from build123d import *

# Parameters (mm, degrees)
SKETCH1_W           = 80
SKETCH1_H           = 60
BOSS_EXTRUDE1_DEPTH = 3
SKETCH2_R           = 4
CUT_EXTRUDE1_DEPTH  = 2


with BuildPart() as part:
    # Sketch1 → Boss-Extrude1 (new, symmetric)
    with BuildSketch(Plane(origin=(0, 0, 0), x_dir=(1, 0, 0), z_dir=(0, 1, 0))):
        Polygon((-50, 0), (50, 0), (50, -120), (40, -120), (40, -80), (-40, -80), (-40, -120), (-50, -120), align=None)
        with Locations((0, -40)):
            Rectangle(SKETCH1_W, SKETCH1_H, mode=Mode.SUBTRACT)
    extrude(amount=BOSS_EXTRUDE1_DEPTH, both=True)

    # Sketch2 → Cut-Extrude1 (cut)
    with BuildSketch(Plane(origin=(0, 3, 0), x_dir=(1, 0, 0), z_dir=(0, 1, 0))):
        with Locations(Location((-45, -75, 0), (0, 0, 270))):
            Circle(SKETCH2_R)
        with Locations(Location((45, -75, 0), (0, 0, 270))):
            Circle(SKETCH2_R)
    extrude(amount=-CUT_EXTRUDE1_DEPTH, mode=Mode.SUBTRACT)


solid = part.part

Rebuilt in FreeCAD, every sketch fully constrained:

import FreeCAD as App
import Part
import Sketcher
from FreeCAD import Vector
Q = App.Units.Quantity

doc = App.newDocument("Part")
params = doc.addObject("Spreadsheet::Sheet", "Params")
for row, (alias, value) in enumerate([
    ("sketch1_width", "100 mm"),
    ("sketch1_width2", "10 mm"),
    ("sketch1_height", "120 mm"),
    ("sketch1_height2", "40 mm"),
    ("sketch1_height3", "60 mm"),
    ("pad1_length", "6 mm"),
    ("sketch2_diameter", "8 mm"),
    ("pocket1_length", "2 mm"),
], start=1):
    params.set(f"A{row}", alias)
    params.set(f"B{row}", "=" + value)
    params.setAlias(f"B{row}", alias)

body = doc.addObject("PartDesign::Body", "Body")

sketch1 = body.newObject("Sketcher::SketchObject", "Sketch")
sketch1.AttachmentSupport = (doc.getObject("XZ_Plane"), [""])
sketch1.MapMode = "FlatFace"
sketch1.addGeometry([
    Part.LineSegment(Vector(50, 0, 0), Vector(-50, 0, 0)),
    Part.LineSegment(Vector(-50, 0, 0), Vector(-50, 120, 0)),
    Part.LineSegment(Vector(-50, 120, 0), Vector(-40, 120, 0)),
    Part.LineSegment(Vector(-40, 120, 0), Vector(-40, 80, 0)),
    Part.LineSegment(Vector(-40, 80, 0), Vector(40, 80, 0)),
    Part.LineSegment(Vector(40, 80, 0), Vector(40, 120, 0)),
    Part.LineSegment(Vector(40, 120, 0), Vector(50, 120, 0)),
    Part.LineSegment(Vector(50, 120, 0), Vector(50, 0, 0)),
    Part.LineSegment(Vector(-40, 70, 0), Vector(-40, 10, 0)),
    Part.LineSegment(Vector(-40, 10, 0), Vector(40, 10, 0)),
    Part.LineSegment(Vector(40, 10, 0), Vector(40, 70, 0)),
    Part.LineSegment(Vector(40, 70, 0), Vector(-40, 70, 0)),
], False)
sketch1.addConstraint([
    Sketcher.Constraint("Coincident", 0, 2, 1, 1),
    Sketcher.Constraint("Coincident", 1, 2, 2, 1),
    Sketcher.Constraint("Coincident", 2, 2, 3, 1),
    Sketcher.Constraint("Coincident", 3, 2, 4, 1),
    Sketcher.Constraint("Coincident", 4, 2, 5, 1),
    Sketcher.Constraint("Coincident", 5, 2, 6, 1),
    Sketcher.Constraint("Coincident", 6, 2, 7, 1),
    Sketcher.Constraint("Coincident", 7, 2, 0, 1),
    Sketcher.Constraint("Coincident", 8, 2, 9, 1),
    Sketcher.Constraint("Coincident", 9, 2, 10, 1),
    Sketcher.Constraint("Coincident", 10, 2, 11, 1),
    Sketcher.Constraint("Coincident", 11, 2, 8, 1),
    Sketcher.Constraint("Horizontal", 0),
    Sketcher.Constraint("Vertical", 1),
    Sketcher.Constraint("Horizontal", 2),
    Sketcher.Constraint("Vertical", 3),
    Sketcher.Constraint("Horizontal", 4),
    Sketcher.Constraint("Vertical", 5),
    Sketcher.Constraint("Horizontal", 6),
    Sketcher.Constraint("Vertical", 7),
    Sketcher.Constraint("Vertical", 8),
    Sketcher.Constraint("Horizontal", 9),
    Sketcher.Constraint("Vertical", 10),
    Sketcher.Constraint("Horizontal", 11),
    Sketcher.Constraint("Symmetric", 0, 2, 7, 2, -1, 1),
    Sketcher.Constraint("Symmetric", 2, 2, 5, 2, -2),
    Sketcher.Constraint("Vertical", 3, 2, 8, 2),
    Sketcher.Constraint("Vertical", 5, 2, 9, 2),
    Sketcher.Constraint("DistanceX", 0, 2, 0, 1, Q("100 mm")),
    Sketcher.Constraint("DistanceX", 2, 1, 2, 2, Q("10 mm")),
    Sketcher.Constraint("DistanceY", 1, 1, 1, 2, Q("120 mm")),
    Sketcher.Constraint("DistanceY", 3, 2, 3, 1, Q("40 mm")),
    Sketcher.Constraint("DistanceY", 8, 2, 8, 1, Q("60 mm")),
    Sketcher.Constraint("DistanceY", -1, 1, 8, 2, Q("10 mm")),
])
sketch1.setExpression("Constraints[28]", "Params.sketch1_width")
sketch1.setExpression("Constraints[29]", "Params.sketch1_width2")
sketch1.setExpression("Constraints[30]", "Params.sketch1_height")
sketch1.setExpression("Constraints[31]", "Params.sketch1_height2")
sketch1.setExpression("Constraints[32]", "Params.sketch1_height3")
pad1 = body.newObject("PartDesign::Pad", "Pad")
pad1.Profile = sketch1
pad1.setExpression("Length", "Params.pad1_length")
pad1.Midplane = True

sketch2 = body.newObject("Sketcher::SketchObject", "Sketch001")
sketch2.AttachmentSupport = (doc.getObject("XZ_Plane"), [""])
sketch2.MapMode = "FlatFace"
sketch2.AttachmentOffset = App.Placement(Vector(0, 0, -3), App.Rotation())
sketch2.addGeometry([
    Part.Circle(Vector(-45, 75, 0), Vector(0, 0, 1), 4),
    Part.Circle(Vector(45, 75, 0), Vector(0, 0, 1), 4),
], False)
sketch2.addConstraint([
    Sketcher.Constraint("Equal", 0, 1),
    Sketcher.Constraint("Symmetric", 0, 3, 1, 3, -2),
    Sketcher.Constraint("Diameter", 0, Q("8 mm")),
    Sketcher.Constraint("DistanceX", 0, 3, -1, 1, Q("45 mm")),
    Sketcher.Constraint("DistanceY", -1, 1, 0, 3, Q("75 mm")),
])
sketch2.setExpression("Constraints[2]", "Params.sketch2_diameter")
pocket1 = body.newObject("PartDesign::Pocket", "Pocket")
pocket1.Profile = sketch2
pocket1.setExpression("Length", "Params.pocket1_length")
pocket1.Reversed = True

doc.recompute()
